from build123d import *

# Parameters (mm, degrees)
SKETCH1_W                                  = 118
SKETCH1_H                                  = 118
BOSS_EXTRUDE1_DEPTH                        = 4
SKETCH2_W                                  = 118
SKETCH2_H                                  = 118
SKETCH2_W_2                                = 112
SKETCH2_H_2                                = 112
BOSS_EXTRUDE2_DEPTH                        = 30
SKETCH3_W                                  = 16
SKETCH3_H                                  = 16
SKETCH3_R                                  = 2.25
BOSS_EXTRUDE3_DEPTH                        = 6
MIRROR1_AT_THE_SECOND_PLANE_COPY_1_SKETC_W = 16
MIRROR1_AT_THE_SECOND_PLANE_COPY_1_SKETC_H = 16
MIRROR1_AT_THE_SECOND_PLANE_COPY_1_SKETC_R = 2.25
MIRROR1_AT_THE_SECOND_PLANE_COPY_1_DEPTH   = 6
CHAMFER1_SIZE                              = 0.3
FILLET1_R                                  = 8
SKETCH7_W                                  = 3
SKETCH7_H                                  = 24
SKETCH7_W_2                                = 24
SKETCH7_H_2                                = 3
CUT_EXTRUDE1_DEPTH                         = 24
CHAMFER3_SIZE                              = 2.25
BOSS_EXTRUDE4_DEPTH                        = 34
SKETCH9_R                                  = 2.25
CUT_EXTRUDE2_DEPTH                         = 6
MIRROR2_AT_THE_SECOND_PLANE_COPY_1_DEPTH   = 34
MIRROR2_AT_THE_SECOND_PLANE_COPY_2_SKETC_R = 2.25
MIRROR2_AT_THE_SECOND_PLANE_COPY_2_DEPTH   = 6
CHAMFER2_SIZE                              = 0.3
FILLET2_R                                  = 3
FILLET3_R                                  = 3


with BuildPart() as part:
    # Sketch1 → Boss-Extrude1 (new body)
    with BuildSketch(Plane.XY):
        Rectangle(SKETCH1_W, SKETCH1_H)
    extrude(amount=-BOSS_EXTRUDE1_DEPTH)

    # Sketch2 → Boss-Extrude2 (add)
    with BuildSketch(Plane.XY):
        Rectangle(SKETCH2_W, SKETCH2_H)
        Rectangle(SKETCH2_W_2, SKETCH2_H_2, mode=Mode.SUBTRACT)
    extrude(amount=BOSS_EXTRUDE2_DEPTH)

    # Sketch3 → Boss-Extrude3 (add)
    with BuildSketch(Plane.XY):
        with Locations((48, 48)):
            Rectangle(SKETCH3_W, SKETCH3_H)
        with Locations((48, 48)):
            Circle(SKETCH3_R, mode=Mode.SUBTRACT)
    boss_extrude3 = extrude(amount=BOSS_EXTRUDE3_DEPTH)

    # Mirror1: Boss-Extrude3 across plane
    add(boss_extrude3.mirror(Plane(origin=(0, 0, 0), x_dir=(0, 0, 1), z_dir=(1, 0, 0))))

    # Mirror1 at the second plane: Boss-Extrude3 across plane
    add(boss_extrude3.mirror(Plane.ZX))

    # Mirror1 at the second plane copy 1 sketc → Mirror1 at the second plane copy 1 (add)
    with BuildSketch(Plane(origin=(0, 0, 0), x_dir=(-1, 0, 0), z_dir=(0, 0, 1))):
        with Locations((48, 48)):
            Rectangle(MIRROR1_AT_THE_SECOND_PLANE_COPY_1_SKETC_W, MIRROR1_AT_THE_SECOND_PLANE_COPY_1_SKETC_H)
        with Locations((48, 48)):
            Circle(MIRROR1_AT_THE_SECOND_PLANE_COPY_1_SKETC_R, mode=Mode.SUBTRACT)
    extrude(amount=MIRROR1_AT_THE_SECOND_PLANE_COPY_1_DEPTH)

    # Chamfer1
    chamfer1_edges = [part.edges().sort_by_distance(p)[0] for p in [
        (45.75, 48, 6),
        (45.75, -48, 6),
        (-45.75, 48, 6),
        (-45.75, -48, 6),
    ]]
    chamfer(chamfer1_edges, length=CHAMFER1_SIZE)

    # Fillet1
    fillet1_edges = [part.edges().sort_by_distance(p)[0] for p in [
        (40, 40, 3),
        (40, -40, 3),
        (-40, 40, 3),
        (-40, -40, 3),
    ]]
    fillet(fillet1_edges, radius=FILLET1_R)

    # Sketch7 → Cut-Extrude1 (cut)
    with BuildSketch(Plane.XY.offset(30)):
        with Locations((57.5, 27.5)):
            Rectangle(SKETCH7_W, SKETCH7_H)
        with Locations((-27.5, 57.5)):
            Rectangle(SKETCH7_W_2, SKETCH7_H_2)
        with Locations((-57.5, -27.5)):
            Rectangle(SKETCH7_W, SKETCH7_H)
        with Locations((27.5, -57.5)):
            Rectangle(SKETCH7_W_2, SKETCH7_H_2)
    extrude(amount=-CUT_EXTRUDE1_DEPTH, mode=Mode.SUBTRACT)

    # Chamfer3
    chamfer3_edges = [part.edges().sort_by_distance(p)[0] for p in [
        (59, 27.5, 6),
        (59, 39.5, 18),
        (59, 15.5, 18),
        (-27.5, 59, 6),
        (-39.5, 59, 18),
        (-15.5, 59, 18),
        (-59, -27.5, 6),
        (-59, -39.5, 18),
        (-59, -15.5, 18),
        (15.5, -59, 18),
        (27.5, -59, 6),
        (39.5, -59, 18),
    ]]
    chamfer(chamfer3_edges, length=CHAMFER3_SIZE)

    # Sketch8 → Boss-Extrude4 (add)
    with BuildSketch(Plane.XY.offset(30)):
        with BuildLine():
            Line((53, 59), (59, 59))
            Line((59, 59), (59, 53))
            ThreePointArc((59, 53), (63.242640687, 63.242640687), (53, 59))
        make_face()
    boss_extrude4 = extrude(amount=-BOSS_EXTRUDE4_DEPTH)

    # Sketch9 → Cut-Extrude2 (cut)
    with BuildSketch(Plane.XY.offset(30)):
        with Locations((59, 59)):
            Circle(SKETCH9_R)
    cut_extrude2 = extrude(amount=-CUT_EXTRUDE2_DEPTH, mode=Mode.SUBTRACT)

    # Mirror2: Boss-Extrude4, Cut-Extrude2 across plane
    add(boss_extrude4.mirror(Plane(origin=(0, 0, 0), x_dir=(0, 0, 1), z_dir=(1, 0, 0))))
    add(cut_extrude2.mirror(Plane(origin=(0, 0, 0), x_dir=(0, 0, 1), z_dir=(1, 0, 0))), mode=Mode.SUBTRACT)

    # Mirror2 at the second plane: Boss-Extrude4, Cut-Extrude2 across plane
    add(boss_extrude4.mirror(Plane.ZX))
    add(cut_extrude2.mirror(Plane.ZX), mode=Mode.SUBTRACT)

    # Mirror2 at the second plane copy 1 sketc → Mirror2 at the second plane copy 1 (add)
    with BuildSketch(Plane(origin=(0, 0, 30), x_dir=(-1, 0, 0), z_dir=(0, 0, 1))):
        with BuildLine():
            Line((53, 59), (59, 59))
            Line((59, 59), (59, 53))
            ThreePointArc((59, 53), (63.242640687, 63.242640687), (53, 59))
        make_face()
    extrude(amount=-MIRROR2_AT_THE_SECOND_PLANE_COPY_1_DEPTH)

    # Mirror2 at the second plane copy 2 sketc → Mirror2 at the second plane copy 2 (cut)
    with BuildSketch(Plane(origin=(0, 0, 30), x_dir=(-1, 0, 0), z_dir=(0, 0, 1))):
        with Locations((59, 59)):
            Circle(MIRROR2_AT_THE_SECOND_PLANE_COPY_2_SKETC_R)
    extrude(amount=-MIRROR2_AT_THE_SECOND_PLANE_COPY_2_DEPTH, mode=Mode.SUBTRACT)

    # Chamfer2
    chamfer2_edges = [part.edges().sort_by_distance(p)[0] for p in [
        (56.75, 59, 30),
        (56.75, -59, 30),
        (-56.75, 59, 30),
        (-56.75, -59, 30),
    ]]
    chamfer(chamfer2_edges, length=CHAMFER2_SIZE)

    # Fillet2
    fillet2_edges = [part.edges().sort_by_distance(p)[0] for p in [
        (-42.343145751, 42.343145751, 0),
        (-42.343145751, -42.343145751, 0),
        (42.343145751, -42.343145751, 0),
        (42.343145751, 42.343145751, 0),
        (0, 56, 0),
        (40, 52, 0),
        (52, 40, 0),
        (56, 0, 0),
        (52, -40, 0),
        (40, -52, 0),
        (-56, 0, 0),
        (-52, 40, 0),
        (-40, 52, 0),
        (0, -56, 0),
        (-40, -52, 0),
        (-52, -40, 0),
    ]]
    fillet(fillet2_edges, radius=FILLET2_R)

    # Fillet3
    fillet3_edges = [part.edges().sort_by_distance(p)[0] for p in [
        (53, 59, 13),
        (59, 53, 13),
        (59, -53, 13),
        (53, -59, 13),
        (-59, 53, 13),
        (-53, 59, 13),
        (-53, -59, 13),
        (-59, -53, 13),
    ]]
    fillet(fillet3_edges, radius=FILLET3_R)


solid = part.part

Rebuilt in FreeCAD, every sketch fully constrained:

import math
import FreeCAD as App
import Part
import Sketcher
from FreeCAD import Vector


def edges_at(feature, points):
    """Names of the edges that pass closest to the given points."""
    edges = feature.Shape.Edges
    near = lambda p: min(range(len(edges)), key=lambda i: edges[i].distToShape(Part.Vertex(*p))[0])
    return sorted({f"Edge{near(p) + 1}" for p in points})


def add_polygon(sketch, points):
    """Adds a closed chain of lines whose ends are joined by coincident constraints."""
    first, n = sketch.GeometryCount, len(points)
    for a, b in zip(points, points[1:] + points[:1]):
        sketch.addGeometry(Part.LineSegment(App.Vector(*a, 0), App.Vector(*b, 0)), False)
    for i in range(n):
        sketch.addConstraint(Sketcher.Constraint("Coincident", first + i, 2, first + (i + 1) % n, 1))

doc = App.newDocument("Part")
body = doc.addObject("PartDesign::Body", "Body")

# Sketch on XY plane
sketch1 = body.newObject("Sketcher::SketchObject", "Sketch")
sketch1.AttachmentSupport = (doc.getObject("XY_Plane"), [""])
sketch1.MapMode = "FlatFace"
add_polygon(sketch1, [(-59, 59), (-59, -59), (59, -59), (59, 59)])  # lines 0-3
sketch1.addConstraint([
    Sketcher.Constraint("Vertical", 0),
    Sketcher.Constraint("Horizontal", 1),
    Sketcher.Constraint("Vertical", 2),
    Sketcher.Constraint("Horizontal", 3),
    Sketcher.Constraint("Symmetric", 0, 2, 2, 2, -1, 1),
    Sketcher.Constraint("Equal", 3, 0),
    Sketcher.Constraint("DistanceX", 1, 1, 1, 2, 118.0),
])
pad1 = body.newObject("PartDesign::Pad", "Pad")
pad1.Profile = sketch1
pad1.Length = 4
pad1.Reversed = True

# Sketch on XY plane
sketch2 = body.newObject("Sketcher::SketchObject", "Sketch001")
sketch2.AttachmentSupport = (doc.getObject("XY_Plane"), [""])
sketch2.MapMode = "FlatFace"
add_polygon(sketch2, [(-59, 59), (-59, -59), (59, -59), (59, 59)])  # lines 0-3
add_polygon(sketch2, [(56, -56), (-56, -56), (-56, 56), (56, 56)])  # lines 4-7
sketch2.addConstraint([
    Sketcher.Constraint("Vertical", 0),
    Sketcher.Constraint("Horizontal", 1),
    Sketcher.Constraint("Vertical", 2),
    Sketcher.Constraint("Horizontal", 3),
    Sketcher.Constraint("Horizontal", 4),
    Sketcher.Constraint("Vertical", 5),
    Sketcher.Constraint("Horizontal", 6),
    Sketcher.Constraint("Vertical", 7),
    Sketcher.Constraint("Symmetric", 0, 2, 2, 2, -1, 1),
    Sketcher.Constraint("Symmetric", 4, 2, 6, 2, -1, 1),
    Sketcher.Constraint("Equal", 3, 0),
    Sketcher.Constraint("Equal", 6, 5),
    Sketcher.Constraint("DistanceX", 1, 1, 1, 2, 118.0),
    Sketcher.Constraint("DistanceX", 4, 2, 4, 1, 112.0),
])
pad2 = body.newObject("PartDesign::Pad", "Pad001")
pad2.Profile = sketch2
pad2.Length = 30

# Sketch on XY plane
sketch3 = body.newObject("Sketcher::SketchObject", "Sketch002")
sketch3.AttachmentSupport = (doc.getObject("XY_Plane"), [""])
sketch3.MapMode = "FlatFace"
add_polygon(sketch3, [(40, 56), (40, 40), (56, 40), (56, 56)])  # lines 0-3
sketch3.addGeometry(Part.Circle(Vector(48, 48, 0), Vector(0, 0, 1), 2.2), False)  # 4
sketch3.addConstraint([
    Sketcher.Constraint("Vertical", 0),
    Sketcher.Constraint("Horizontal", 1),
    Sketcher.Constraint("Vertical", 2),
    Sketcher.Constraint("Horizontal", 3),
    Sketcher.Constraint("Equal", 3, 0),
    Sketcher.Constraint("Diameter", 4, 4.5),
    Sketcher.Constraint("DistanceX", 1, 1, 1, 2, 16.0),
    Sketcher.Constraint("DistanceX", -1, 1, 4, 3, 48.0),
    Sketcher.Constraint("DistanceY", -1, 1, 4, 3, 48.0),
    Sketcher.Constraint("DistanceX", -1, 1, 0, 2, 40.0),
    Sketcher.Constraint("DistanceY", -1, 1, 0, 2, 40.0),
])
pad3 = body.newObject("PartDesign::Pad", "Pad002")
pad3.Profile = sketch3
pad3.Length = 6
doc.recompute()

mirrored = body.newObject("PartDesign::Mirrored", "Mirrored")
mirrored.Originals = [pad3]
mirrored.MirrorPlane = (doc.getObject("YZ_Plane"), [""])
body.Tip = mirrored
doc.recompute()

mirrored2 = body.newObject("PartDesign::Mirrored", "Mirrored001")
mirrored2.Originals = [pad3]
mirrored2.MirrorPlane = (doc.getObject("XZ_Plane"), [""])
body.Tip = mirrored2

# Sketch on XY plane
sketch4 = body.newObject("Sketcher::SketchObject", "Sketch003")
sketch4.AttachmentSupport = (doc.getObject("XY_Plane"), [""])
sketch4.MapMode = "FlatFace"
add_polygon(sketch4, [(-40, -56), (-40, -40), (-56, -40), (-56, -56)])  # lines 0-3
sketch4.addGeometry(Part.Circle(Vector(-48, -48, 0), Vector(0, 0, 1), 2.2), False)  # 4
sketch4.addConstraint([
    Sketcher.Constraint("Vertical", 0),
    Sketcher.Constraint("Horizontal", 1),
    Sketcher.Constraint("Vertical", 2),
    Sketcher.Constraint("Horizontal", 3),
    Sketcher.Constraint("Equal", 3, 0),
    Sketcher.Constraint("Diameter", 4, 4.5),
    Sketcher.Constraint("DistanceX", 1, 2, 1, 1, 16.0),
    Sketcher.Constraint("DistanceX", 4, 3, -1, 1, 48.0),
    Sketcher.Constraint("DistanceY", 4, 3, -1, 1, 48.0),
    Sketcher.Constraint("DistanceX", 0, 2, -1, 1, 40.0),
    Sketcher.Constraint("DistanceY", 0, 2, -1, 1, 40.0),
])
pad4 = body.newObject("PartDesign::Pad", "Pad003")
pad4.Profile = sketch4
pad4.Length = 6
doc.recompute()

chamfer = body.newObject("PartDesign::Chamfer", "Chamfer")
chamfer.Base = (pad4, edges_at(pad4, [
    (45.75, 48, 6),
    (45.75, -48, 6),
    (-45.75, 48, 6),
    (-45.75, -48, 6),
]))
chamfer.Size = 0.3
doc.recompute()

fillet = body.newObject("PartDesign::Fillet", "Fillet")
fillet.Base = (chamfer, edges_at(chamfer, [
    (40, 40, 3),
    (40, -40, 3),
    (-40, 40, 3),
    (-40, -40, 3),
]))
fillet.Radius = 8

# Sketch on XY plane
sketch5 = body.newObject("Sketcher::SketchObject", "Sketch004")
sketch5.AttachmentSupport = (doc.getObject("XY_Plane"), [""])
sketch5.MapMode = "FlatFace"
sketch5.AttachmentOffset = App.Placement(Vector(0, 0, 30), App.Rotation())
add_polygon(sketch5, [(56, 39.5), (56, 15.5), (59, 15.5), (59, 39.5)])  # lines 0-3
add_polygon(sketch5, [(-39.5, 59), (-39.5, 56), (-15.5, 56), (-15.5, 59)])  # lines 4-7
add_polygon(sketch5, [(-59, -15.5), (-59, -39.5), (-56, -39.5), (-56, -15.5)])  # lines 8-11
add_polygon(sketch5, [(15.5, -56), (15.5, -59), (39.5, -59), (39.5, -56)])  # lines 12-15
sketch5.addConstraint([
    Sketcher.Constraint("Vertical", 0),
    Sketcher.Constraint("Horizontal", 1),
    Sketcher.Constraint("Vertical", 2),
    Sketcher.Constraint("Horizontal", 3),
    Sketcher.Constraint("Vertical", 4),
    Sketcher.Constraint("Horizontal", 5),
    Sketcher.Constraint("Vertical", 6),
    Sketcher.Constraint("Horizontal", 7),
    Sketcher.Constraint("Vertical", 8),
    Sketcher.Constraint("Horizontal", 9),
    Sketcher.Constraint("Vertical", 10),
    Sketcher.Constraint("Horizontal", 11),
    Sketcher.Constraint("Vertical", 12),
    Sketcher.Constraint("Horizontal", 13),
    Sketcher.Constraint("Vertical", 14),
    Sketcher.Constraint("Horizontal", 15),
    Sketcher.Constraint("Symmetric", 2, 2, 8, 2, -1, 1),
    Sketcher.Constraint("Symmetric", 0, 2, 10, 2, -1, 1),
    Sketcher.Constraint("Symmetric", 6, 2, 12, 2, -1, 1),
    Sketcher.Constraint("Symmetric", 4, 2, 14, 2, -1, 1),
    Sketcher.Constraint("Equal", 15, 0),
    Sketcher.Constraint("Equal", 11, 4),
    Sketcher.Constraint("DistanceX", 1, 1, 1, 2, 3.0),
    Sketcher.Constraint("DistanceX", 5, 1, 5, 2, 24.0),
    Sketcher.Constraint("DistanceX", -1, 1, 0, 2, 56.0),
    Sketcher.Constraint("DistanceY", -1, 1, 4, 2, 56.0),
    Sketcher.Constraint("DistanceY", 8, 2, 0, 2, 55.0),
    Sketcher.Constraint("DistanceX", 4, 2, -1, 1, 39.5),
])
pocket1 = body.newObject("PartDesign::Pocket", "Pocket")
pocket1.Profile = sketch5
pocket1.Length = 24
doc.recompute()

chamfer2 = body.newObject("PartDesign::Chamfer", "Chamfer001")
chamfer2.Base = (pocket1, edges_at(pocket1, [
    (59, 27.5, 6),
    (59, 39.5, 18),
    (59, 15.5, 18),
    (-27.5, 59, 6),
    (-39.5, 59, 18),
    (-15.5, 59, 18),
    (-59, -27.5, 6),
    (-59, -39.5, 18),
    (-59, -15.5, 18),
    (15.5, -59, 18),
    (27.5, -59, 6),
    (39.5, -59, 18),
]))
chamfer2.Size = 2.25

# Sketch on XY plane
sketch6 = body.newObject("Sketcher::SketchObject", "Sketch005")
sketch6.AttachmentSupport = (doc.getObject("XY_Plane"), [""])
sketch6.MapMode = "FlatFace"
sketch6.AttachmentOffset = App.Placement(Vector(0, 0, 30), App.Rotation())
sketch6.addGeometry([
    Part.LineSegment(Vector(53, 59, 0), Vector(59, 59, 0)),
    Part.LineSegment(Vector(59, 59, 0), Vector(59, 53, 0)),
    Part.ArcOfCircle(Part.Circle(Vector(59, 59, 0), Vector(0, 0, 1), 6), math.radians(-90), math.radians(180)),
], False)
sketch6.addConstraint([
    Sketcher.Constraint("Coincident", 0, 2, 1, 1),
    Sketcher.Constraint("Coincident", 1, 2, 2, 1),
    Sketcher.Constraint("Coincident", 2, 2, 0, 1),
    Sketcher.Constraint("Horizontal", 0),
    Sketcher.Constraint("Vertical", 1),
    Sketcher.Constraint("Coincident", 0, 2, 2, 3),
    Sketcher.Constraint("Radius", 2, 6.0),
    Sketcher.Constraint("DistanceX", -1, 1, 2, 3, 59.0),
    Sketcher.Constraint("DistanceY", -1, 1, 2, 3, 59.0),
])
pad5 = body.newObject("PartDesign::Pad", "Pad004")
pad5.Profile = sketch6
pad5.Length = 34
pad5.Reversed = True

# Sketch on XY plane
sketch7 = body.newObject("Sketcher::SketchObject", "Sketch006")
sketch7.AttachmentSupport = (doc.getObject("XY_Plane"), [""])
sketch7.MapMode = "FlatFace"
sketch7.AttachmentOffset = App.Placement(Vector(0, 0, 30), App.Rotation())
sketch7.addGeometry(Part.Circle(Vector(59, 59, 0), Vector(0, 0, 1), 2.2), False)
sketch7.addConstraint([
    Sketcher.Constraint("Diameter", 0, 4.5),
    Sketcher.Constraint("DistanceX", -1, 1, 0, 3, 59.0),
    Sketcher.Constraint("DistanceY", -1, 1, 0, 3, 59.0),
])
pocket2 = body.newObject("PartDesign::Pocket", "Pocket001")
pocket2.Profile = sketch7
pocket2.Length = 6
doc.recompute()

mirrored3 = body.newObject("PartDesign::Mirrored", "Mirrored002")
mirrored3.Originals = [pad5, pocket2]
mirrored3.MirrorPlane = (doc.getObject("YZ_Plane"), [""])
body.Tip = mirrored3
doc.recompute()

mirrored4 = body.newObject("PartDesign::Mirrored", "Mirrored003")
mirrored4.Originals = [pad5, pocket2]
mirrored4.MirrorPlane = (doc.getObject("XZ_Plane"), [""])
body.Tip = mirrored4

# Sketch on XY plane
sketch8 = body.newObject("Sketcher::SketchObject", "Sketch007")
sketch8.AttachmentSupport = (doc.getObject("XY_Plane"), [""])
sketch8.MapMode = "FlatFace"
sketch8.AttachmentOffset = App.Placement(Vector(0, 0, 30), App.Rotation())
sketch8.addGeometry([
    Part.LineSegment(Vector(-53, -59, 0), Vector(-59, -59, 0)),
    Part.LineSegment(Vector(-59, -59, 0), Vector(-59, -53, 0)),
    Part.ArcOfCircle(Part.Circle(Vector(-59, -59, 0), Vector(0, 0, 1), 6), math.radians(90), math.radians(360)),
], False)
sketch8.addConstraint([
    Sketcher.Constraint("Coincident", 0, 2, 1, 1),
    Sketcher.Constraint("Coincident", 1, 2, 2, 1),
    Sketcher.Constraint("Coincident", 2, 2, 0, 1),
    Sketcher.Constraint("Horizontal", 0),
    Sketcher.Constraint("Vertical", 1),
    Sketcher.Constraint("Coincident", 0, 2, 2, 3),
    Sketcher.Constraint("Radius", 2, 6.0),
    Sketcher.Constraint("DistanceX", 2, 3, -1, 1, 59.0),
    Sketcher.Constraint("DistanceY", 2, 3, -1, 1, 59.0),
])
pad6 = body.newObject("PartDesign::Pad", "Pad005")
pad6.Profile = sketch8
pad6.Length = 34
pad6.Reversed = True

# Sketch on XY plane
sketch9 = body.newObject("Sketcher::SketchObject", "Sketch008")
sketch9.AttachmentSupport = (doc.getObject("XY_Plane"), [""])
sketch9.MapMode = "FlatFace"
sketch9.AttachmentOffset = App.Placement(Vector(0, 0, 30), App.Rotation())
sketch9.addGeometry(Part.Circle(Vector(-59, -59, 0), Vector(0, 0, 1), 2.2), False)
sketch9.addConstraint([
    Sketcher.Constraint("Diameter", 0, 4.5),
    Sketcher.Constraint("DistanceX", 0, 3, -1, 1, 59.0),
    Sketcher.Constraint("DistanceY", 0, 3, -1, 1, 59.0),
])
pocket3 = body.newObject("PartDesign::Pocket", "Pocket002")
pocket3.Profile = sketch9
pocket3.Length = 6
doc.recompute()

chamfer3 = body.newObject("PartDesign::Chamfer", "Chamfer002")
chamfer3.Base = (pocket3, edges_at(pocket3, [
    (56.75, 59, 30),
    (56.75, -59, 30),
    (-56.75, 59, 30),
    (-56.75, -59, 30),
]))
chamfer3.Size = 0.3
doc.recompute()

fillet2 = body.newObject("PartDesign::Fillet", "Fillet001")
fillet2.Base = (chamfer3, edges_at(chamfer3, [
    (-42.343, 42.343, 0),
    (-42.343, -42.343, 0),
    (42.343, -42.343, 0),
    (42.343, 42.343, 0),
    (0, 56, 0),
    (40, 52, 0),
    (52, 40, 0),
    (56, 0, 0),
    (52, -40, 0),
    (40, -52, 0),
    (-56, 0, 0),
    (-52, 40, 0),
    (-40, 52, 0),
    (0, -56, 0),
    (-40, -52, 0),
    (-52, -40, 0),
]))
fillet2.Radius = 3
doc.recompute()

fillet3 = body.newObject("PartDesign::Fillet", "Fillet002")
fillet3.Base = (fillet2, edges_at(fillet2, [
    (53, 59, 13),
    (59, 53, 13),
    (59, -53, 13),
    (53, -59, 13),
    (-59, 53, 13),
    (-53, 59, 13),
    (-53, -59, 13),
    (-59, -53, 13),
]))
fillet3.Radius = 3

doc.recompute()
